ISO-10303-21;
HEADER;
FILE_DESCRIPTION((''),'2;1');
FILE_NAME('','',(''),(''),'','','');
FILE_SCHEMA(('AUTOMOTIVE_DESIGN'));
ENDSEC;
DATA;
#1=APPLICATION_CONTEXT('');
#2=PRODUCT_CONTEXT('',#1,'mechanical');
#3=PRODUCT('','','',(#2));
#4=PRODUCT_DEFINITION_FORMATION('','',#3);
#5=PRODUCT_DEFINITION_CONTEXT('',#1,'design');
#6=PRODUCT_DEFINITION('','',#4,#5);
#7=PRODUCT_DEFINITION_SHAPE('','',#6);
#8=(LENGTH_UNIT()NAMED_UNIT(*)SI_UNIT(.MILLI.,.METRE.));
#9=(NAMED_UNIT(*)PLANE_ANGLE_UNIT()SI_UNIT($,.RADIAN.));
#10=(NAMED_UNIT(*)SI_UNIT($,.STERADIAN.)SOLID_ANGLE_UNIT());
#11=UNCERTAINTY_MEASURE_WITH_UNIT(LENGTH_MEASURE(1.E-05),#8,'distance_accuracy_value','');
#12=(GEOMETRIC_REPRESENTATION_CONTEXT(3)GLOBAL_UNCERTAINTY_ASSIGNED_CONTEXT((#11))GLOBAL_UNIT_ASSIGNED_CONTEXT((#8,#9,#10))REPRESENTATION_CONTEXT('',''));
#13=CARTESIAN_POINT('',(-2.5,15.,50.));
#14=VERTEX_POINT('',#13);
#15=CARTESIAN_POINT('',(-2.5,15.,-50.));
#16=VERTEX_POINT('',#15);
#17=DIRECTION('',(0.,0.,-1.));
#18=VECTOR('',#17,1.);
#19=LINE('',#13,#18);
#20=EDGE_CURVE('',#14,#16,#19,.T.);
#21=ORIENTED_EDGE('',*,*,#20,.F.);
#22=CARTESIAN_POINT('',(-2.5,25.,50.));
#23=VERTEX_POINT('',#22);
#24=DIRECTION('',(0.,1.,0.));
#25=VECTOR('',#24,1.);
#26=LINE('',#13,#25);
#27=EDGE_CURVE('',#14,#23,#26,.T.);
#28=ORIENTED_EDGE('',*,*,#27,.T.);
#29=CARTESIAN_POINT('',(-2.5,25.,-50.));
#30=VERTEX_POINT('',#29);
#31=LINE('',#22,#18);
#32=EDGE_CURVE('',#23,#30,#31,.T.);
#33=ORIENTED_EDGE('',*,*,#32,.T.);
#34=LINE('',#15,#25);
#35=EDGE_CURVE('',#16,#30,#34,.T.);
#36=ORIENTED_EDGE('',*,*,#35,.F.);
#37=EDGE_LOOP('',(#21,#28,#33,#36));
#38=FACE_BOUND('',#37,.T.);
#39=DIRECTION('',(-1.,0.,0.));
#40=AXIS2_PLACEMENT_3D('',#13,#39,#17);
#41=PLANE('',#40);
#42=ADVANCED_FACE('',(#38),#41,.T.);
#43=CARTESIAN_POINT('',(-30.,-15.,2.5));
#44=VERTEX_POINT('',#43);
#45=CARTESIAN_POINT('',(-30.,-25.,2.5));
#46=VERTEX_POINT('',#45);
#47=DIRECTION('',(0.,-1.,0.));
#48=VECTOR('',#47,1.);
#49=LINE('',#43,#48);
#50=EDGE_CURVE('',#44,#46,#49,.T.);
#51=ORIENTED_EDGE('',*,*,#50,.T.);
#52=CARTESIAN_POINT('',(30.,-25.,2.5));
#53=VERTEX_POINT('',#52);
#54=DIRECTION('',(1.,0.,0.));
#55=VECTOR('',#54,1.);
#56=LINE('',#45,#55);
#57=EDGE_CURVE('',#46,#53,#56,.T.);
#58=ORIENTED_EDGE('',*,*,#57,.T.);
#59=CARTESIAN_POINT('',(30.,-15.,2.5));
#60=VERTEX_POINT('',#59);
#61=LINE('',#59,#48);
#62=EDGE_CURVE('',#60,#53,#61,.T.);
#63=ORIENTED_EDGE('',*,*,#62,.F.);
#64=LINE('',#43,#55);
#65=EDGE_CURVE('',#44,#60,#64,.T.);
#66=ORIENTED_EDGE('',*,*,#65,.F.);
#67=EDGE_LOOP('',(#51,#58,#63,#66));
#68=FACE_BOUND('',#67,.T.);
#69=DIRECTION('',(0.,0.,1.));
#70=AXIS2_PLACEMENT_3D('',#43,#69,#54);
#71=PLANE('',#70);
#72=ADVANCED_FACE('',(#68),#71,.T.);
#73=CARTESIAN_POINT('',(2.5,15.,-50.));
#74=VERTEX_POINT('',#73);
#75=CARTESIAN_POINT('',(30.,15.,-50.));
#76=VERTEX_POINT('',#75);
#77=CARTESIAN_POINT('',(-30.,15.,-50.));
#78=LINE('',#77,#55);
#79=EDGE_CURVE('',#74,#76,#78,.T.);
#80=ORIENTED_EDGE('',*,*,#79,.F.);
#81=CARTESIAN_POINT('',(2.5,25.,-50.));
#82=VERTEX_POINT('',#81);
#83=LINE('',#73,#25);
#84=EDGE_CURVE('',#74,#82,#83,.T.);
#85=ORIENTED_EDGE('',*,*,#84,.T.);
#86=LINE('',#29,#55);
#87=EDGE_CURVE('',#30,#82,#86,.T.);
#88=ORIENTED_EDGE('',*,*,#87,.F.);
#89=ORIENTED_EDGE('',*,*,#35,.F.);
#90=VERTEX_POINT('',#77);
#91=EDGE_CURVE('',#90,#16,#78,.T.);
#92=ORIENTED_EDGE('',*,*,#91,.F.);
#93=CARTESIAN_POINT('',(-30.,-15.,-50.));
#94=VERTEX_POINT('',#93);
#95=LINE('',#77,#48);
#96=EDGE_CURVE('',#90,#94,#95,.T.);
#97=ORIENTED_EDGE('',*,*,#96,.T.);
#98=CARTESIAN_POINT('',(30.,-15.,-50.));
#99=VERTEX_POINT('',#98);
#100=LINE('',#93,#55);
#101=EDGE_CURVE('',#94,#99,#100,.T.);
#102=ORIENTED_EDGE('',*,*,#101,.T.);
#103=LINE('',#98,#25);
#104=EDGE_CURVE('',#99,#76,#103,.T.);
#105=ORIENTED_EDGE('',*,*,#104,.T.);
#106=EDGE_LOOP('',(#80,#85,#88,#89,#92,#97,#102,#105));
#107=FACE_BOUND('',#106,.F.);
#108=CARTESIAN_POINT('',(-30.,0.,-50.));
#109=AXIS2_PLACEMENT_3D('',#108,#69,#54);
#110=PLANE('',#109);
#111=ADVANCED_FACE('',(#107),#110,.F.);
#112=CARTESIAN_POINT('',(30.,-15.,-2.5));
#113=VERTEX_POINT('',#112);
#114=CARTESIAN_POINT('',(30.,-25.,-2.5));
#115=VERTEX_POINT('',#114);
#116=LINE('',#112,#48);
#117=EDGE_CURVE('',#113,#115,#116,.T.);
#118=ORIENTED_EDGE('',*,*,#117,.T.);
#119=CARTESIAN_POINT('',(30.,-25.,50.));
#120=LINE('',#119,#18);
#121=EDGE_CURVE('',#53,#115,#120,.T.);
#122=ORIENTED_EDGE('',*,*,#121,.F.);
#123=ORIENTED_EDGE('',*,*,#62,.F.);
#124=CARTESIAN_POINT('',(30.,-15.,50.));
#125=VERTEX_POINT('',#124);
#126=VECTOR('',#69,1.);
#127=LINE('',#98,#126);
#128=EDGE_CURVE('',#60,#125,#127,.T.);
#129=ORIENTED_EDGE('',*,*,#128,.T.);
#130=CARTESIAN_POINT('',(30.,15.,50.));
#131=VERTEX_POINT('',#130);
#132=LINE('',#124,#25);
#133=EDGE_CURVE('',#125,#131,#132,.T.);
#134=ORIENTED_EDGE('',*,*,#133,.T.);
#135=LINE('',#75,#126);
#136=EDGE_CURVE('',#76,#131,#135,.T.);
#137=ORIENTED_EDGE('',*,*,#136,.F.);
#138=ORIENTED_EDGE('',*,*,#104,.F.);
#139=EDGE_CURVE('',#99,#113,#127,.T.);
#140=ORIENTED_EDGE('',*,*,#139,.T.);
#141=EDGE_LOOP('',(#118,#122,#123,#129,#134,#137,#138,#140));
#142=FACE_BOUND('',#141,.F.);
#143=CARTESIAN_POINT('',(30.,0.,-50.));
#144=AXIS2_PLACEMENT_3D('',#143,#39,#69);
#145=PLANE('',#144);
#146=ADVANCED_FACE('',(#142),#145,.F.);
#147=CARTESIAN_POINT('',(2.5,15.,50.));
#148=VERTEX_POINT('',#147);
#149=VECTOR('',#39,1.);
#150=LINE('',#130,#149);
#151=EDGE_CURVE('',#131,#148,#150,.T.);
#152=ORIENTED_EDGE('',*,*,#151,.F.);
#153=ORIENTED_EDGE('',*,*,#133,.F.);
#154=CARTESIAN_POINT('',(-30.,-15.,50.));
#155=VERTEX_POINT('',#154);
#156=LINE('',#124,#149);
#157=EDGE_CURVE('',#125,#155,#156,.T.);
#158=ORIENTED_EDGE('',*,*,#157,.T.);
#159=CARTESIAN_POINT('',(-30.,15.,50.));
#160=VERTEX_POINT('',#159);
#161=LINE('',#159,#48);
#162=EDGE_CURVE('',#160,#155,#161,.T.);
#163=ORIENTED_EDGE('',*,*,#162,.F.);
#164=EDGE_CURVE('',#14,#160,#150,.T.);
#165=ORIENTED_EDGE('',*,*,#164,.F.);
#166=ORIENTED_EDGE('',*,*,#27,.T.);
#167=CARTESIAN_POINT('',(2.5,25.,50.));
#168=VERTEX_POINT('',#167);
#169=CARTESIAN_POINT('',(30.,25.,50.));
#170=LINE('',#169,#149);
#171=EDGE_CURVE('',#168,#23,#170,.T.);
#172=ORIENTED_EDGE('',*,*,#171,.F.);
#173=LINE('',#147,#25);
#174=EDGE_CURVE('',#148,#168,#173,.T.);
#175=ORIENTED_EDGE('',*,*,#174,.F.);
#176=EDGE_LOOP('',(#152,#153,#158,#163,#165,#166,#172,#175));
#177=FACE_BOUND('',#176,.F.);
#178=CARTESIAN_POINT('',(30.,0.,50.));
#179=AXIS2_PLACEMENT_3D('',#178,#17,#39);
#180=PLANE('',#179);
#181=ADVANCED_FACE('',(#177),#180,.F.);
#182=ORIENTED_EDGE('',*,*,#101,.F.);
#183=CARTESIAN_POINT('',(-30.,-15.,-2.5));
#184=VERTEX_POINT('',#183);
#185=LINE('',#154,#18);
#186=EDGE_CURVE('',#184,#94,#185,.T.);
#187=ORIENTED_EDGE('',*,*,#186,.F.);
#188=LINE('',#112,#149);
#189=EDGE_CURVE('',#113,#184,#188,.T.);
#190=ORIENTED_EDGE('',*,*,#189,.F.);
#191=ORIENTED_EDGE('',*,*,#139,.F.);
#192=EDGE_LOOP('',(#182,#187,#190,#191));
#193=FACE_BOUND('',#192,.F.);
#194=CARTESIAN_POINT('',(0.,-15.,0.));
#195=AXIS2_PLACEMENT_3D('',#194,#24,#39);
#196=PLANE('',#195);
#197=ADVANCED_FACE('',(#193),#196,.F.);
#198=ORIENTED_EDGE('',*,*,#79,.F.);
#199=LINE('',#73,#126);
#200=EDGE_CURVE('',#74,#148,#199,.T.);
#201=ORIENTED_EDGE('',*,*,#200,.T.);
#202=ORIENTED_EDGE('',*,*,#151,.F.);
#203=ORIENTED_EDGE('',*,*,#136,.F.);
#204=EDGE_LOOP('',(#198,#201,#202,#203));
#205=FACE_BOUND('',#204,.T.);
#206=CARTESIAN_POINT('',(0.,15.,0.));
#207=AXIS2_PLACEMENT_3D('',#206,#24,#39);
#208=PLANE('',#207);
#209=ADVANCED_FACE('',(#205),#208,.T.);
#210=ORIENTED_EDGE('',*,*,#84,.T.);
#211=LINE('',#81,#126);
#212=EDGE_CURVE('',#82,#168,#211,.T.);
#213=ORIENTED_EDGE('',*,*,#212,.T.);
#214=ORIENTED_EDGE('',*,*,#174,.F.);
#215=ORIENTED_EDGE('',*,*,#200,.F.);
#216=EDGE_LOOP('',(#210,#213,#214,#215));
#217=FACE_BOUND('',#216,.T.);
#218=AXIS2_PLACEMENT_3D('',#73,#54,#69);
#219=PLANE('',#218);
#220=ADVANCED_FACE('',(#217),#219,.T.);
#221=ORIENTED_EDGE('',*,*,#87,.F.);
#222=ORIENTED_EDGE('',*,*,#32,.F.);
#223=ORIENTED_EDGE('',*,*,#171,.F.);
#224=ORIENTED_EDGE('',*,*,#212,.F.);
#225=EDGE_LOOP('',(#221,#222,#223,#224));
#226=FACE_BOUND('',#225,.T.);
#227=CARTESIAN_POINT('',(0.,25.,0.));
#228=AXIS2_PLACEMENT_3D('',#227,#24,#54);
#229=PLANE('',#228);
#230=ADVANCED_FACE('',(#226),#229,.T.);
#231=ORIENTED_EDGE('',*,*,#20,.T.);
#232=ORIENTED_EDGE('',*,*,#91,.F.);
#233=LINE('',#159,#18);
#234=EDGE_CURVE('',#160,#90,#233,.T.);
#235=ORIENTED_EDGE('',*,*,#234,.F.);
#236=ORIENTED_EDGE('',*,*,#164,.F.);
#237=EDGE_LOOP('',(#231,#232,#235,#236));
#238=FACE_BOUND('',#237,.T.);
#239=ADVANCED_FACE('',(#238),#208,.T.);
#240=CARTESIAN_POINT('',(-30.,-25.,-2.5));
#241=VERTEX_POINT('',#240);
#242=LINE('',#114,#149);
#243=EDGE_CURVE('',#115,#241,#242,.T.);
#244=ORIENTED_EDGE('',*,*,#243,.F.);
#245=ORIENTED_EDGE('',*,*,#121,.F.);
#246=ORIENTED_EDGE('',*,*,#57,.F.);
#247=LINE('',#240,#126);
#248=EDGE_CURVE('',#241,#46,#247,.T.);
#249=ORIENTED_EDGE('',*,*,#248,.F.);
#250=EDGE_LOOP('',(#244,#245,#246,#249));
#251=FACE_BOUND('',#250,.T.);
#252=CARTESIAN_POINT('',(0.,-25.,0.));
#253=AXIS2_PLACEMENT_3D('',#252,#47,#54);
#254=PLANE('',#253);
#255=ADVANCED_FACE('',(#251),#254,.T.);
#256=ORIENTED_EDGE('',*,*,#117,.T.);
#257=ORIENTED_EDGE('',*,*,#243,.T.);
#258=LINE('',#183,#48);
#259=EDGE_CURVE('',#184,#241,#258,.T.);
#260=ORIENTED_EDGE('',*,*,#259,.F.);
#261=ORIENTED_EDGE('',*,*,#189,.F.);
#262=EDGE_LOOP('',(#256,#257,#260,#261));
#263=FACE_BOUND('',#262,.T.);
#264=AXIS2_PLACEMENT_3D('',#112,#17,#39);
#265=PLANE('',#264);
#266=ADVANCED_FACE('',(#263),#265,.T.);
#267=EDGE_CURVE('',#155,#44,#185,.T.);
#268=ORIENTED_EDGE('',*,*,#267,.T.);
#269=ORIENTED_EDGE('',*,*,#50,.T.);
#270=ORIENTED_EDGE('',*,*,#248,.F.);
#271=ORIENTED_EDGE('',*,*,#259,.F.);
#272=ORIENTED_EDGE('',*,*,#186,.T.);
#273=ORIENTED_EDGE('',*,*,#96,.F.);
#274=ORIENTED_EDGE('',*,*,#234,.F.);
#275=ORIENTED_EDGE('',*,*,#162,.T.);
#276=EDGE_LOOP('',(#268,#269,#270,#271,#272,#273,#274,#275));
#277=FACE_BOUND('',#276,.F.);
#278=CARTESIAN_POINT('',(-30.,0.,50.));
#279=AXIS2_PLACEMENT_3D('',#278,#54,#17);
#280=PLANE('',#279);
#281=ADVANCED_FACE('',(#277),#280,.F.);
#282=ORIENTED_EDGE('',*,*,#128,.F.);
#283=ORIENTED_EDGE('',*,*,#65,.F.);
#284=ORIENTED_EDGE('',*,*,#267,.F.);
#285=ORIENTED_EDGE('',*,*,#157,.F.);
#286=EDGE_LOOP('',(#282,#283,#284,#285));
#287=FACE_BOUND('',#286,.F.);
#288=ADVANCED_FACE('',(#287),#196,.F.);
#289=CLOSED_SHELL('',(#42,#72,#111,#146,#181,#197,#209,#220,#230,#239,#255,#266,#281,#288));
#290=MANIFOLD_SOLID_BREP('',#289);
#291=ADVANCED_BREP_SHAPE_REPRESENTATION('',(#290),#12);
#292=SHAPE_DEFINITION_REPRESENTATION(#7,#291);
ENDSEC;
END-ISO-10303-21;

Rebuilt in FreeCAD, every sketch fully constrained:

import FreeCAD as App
import Part
import Sketcher

V = App.Vector


def add_polygon(sketch, points):
    """Adds a closed chain of lines whose ends are joined by coincident constraints."""
    first, n = sketch.GeometryCount, len(points)
    for a, b in zip(points, points[1:] + points[:1]):
        sketch.addGeometry(Part.LineSegment(App.Vector(*a, 0), App.Vector(*b, 0)), False)
    for i in range(n):
        sketch.addConstraint(Sketcher.Constraint("Coincident", first + i, 2, first + (i + 1) % n, 1))

doc = App.newDocument("Part")
body = doc.addObject("PartDesign::Body", "Body")

sketch1 = body.newObject("Sketcher::SketchObject", "Sketch")
sketch1.AttachmentSupport = (doc.getObject("XZ_Plane"), [""])
sketch1.MapMode = "FlatFace"
add_polygon(sketch1, [(-30, 50), (30, 50), (30, -50), (-30, -50)])
sketch1.addConstraint([
    Sketcher.Constraint("Horizontal", 0),
    Sketcher.Constraint("Vertical", 1),
    Sketcher.Constraint("Horizontal", 2),
    Sketcher.Constraint("Vertical", 3),
    Sketcher.Constraint("Symmetric", 0, 2, 2, 2, -1, 1),
    Sketcher.Constraint("DistanceX", 0, 1, 0, 2, 60.0),
    Sketcher.Constraint("DistanceY", 1, 2, 1, 1, 100.0),
])
pad1 = body.newObject("PartDesign::Pad", "Pad")
pad1.Profile = sketch1
pad1.Length = 30
pad1.Midplane = True

sketch2 = body.newObject("Sketcher::SketchObject", "Sketch001")
sketch2.AttachmentSupport = (doc.getObject("XZ_Plane"), [""])
sketch2.MapMode = "FlatFace"
sketch2.AttachmentOffset = App.Placement(V(0, 0, -15), App.Rotation())
add_polygon(sketch2, [(-2, 50), (2, 50), (2, -50), (-2, -50)])
sketch2.addConstraint([
    Sketcher.Constraint("Horizontal", 0),
    Sketcher.Constraint("Vertical", 1),
    Sketcher.Constraint("Horizontal", 2),
    Sketcher.Constraint("Vertical", 3),
    Sketcher.Constraint("Symmetric", 0, 2, 2, 2, -1, 1),
    Sketcher.Constraint("DistanceX", 0, 1, 0, 2, 5.0),
    Sketcher.Constraint("DistanceY", 1, 2, 1, 1, 100.0),
])
pad2 = body.newObject("PartDesign::Pad", "Pad001")
pad2.Profile = sketch2
pad2.Length = 10
pad2.Reversed = True

sketch3 = body.newObject("Sketcher::SketchObject", "Sketch002")
sketch3.AttachmentSupport = (doc.getObject("XZ_Plane"), [""])
sketch3.MapMode = "FlatFace"
sketch3.AttachmentOffset = App.Placement(V(0, 0, 15), App.Rotation())
add_polygon(sketch3, [(30, -2), (30, 2), (-30, 2), (-30, -2)])
sketch3.addConstraint([
    Sketcher.Constraint("Vertical", 0),
    Sketcher.Constraint("Horizontal", 1),
    Sketcher.Constraint("Vertical", 2),
    Sketcher.Constraint("Horizontal", 3),
    Sketcher.Constraint("Symmetric", 0, 2, 2, 2, -1, 1),
    Sketcher.Constraint("DistanceY", 0, 1, 0, 2, 5.0),
    Sketcher.Constraint("DistanceX", 1, 2, 1, 1, 60.0),
])
pad3 = body.newObject("PartDesign::Pad", "Pad002")
pad3.Profile = sketch3
pad3.Length = 10

doc.recompute()
